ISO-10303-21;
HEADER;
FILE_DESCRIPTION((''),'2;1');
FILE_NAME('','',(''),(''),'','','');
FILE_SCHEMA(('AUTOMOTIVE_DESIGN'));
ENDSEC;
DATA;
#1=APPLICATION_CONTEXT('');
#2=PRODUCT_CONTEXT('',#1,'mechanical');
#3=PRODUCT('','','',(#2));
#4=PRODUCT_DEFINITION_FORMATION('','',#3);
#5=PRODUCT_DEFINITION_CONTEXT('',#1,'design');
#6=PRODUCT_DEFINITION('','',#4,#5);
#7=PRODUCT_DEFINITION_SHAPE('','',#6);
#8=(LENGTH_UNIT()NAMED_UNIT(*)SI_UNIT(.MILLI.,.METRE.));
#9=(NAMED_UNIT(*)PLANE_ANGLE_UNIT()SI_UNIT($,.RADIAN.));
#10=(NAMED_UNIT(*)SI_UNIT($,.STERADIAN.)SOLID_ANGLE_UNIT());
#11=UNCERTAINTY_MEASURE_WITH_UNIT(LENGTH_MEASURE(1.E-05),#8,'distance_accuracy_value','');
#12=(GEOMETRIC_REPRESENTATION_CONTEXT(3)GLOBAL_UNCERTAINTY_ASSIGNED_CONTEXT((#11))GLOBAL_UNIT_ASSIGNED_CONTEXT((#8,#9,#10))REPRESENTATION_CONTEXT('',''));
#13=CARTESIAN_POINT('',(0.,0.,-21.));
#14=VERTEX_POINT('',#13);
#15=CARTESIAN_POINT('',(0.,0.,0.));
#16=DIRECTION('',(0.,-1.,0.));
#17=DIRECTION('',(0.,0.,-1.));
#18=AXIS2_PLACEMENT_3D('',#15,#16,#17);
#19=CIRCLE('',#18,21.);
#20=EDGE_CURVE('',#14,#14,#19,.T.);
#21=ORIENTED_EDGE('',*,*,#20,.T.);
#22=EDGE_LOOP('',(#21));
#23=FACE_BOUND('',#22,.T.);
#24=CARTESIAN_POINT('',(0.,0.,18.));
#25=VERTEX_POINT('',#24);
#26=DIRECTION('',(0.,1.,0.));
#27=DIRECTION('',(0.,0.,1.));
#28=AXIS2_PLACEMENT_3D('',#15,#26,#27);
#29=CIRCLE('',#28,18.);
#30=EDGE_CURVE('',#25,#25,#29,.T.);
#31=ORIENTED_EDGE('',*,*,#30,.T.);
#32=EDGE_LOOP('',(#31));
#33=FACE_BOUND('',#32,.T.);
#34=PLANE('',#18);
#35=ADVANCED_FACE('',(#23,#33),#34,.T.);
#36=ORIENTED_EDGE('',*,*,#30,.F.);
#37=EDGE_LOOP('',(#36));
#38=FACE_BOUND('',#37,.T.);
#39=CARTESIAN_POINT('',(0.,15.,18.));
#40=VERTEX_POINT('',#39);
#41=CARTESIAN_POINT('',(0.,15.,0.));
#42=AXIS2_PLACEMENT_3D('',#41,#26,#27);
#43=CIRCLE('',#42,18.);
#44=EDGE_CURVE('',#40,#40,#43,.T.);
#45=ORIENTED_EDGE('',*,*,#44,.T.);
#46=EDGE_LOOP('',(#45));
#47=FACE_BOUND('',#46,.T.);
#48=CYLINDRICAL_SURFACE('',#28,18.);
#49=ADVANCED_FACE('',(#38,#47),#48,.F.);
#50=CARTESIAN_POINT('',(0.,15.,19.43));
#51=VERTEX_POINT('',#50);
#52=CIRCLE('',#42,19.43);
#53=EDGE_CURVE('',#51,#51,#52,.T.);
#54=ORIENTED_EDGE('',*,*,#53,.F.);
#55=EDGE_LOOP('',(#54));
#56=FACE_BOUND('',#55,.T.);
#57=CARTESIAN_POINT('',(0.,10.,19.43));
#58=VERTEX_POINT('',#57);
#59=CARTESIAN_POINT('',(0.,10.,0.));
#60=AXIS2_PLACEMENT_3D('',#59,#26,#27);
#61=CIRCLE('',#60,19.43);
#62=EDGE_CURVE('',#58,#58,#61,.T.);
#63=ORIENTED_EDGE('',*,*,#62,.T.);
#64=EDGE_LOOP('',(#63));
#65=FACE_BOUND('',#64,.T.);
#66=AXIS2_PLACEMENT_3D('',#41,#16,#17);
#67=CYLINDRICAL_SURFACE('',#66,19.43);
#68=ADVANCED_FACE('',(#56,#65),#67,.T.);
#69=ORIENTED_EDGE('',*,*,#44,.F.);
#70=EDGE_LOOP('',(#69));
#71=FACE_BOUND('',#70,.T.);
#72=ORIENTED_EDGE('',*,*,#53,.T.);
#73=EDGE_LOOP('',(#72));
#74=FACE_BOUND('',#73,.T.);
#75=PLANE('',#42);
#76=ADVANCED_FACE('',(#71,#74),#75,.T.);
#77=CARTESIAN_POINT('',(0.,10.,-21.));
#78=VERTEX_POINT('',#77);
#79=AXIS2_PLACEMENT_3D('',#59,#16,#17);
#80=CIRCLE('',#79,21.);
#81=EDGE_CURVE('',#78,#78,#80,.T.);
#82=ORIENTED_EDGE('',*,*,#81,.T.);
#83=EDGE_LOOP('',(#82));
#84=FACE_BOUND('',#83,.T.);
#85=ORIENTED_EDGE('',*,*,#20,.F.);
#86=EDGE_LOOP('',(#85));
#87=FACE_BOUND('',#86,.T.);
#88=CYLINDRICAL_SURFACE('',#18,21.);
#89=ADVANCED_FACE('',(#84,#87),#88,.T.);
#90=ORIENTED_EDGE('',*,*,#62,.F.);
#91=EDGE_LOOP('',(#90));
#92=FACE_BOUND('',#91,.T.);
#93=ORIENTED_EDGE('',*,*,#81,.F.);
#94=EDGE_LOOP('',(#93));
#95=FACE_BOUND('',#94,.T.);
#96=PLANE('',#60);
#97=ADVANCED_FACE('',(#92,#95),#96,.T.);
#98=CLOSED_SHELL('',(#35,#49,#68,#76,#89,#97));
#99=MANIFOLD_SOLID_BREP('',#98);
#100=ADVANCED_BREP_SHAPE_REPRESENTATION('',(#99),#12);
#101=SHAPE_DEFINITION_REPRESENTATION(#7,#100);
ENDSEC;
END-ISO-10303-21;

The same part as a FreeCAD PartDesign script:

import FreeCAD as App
import Part
import Sketcher

V = App.Vector

doc = App.newDocument("Part")
body = doc.addObject("PartDesign::Body", "Body")

# Sketch on XY plane
sketch1 = doc.addObject("Sketcher::SketchObject", "Sketch")
body.addObject(sketch1)
sketch1.AttachmentSupport = (doc.XY_Plane, [""])
sketch1.MapMode = "FlatFace"
sketch1.addGeometry([
    Part.LineSegment(V(0, 10, 0), V(0, 0, 0)),
    Part.LineSegment(V(0, 0, 0), V(21, 0, 0)),
    Part.LineSegment(V(21, 0, 0), V(21, 10, 0)),
    Part.LineSegment(V(21, 10, 0), V(0, 10, 0)),
], False)
sketch1.addConstraint([
    Sketcher.Constraint("Coincident", 0, 2, 1, 1),
    Sketcher.Constraint("Coincident", 1, 2, 2, 1),
    Sketcher.Constraint("Coincident", 2, 2, 3, 1),
    Sketcher.Constraint("Coincident", 3, 2, 0, 1),
    Sketcher.Constraint("Vertical", 0),
    Sketcher.Constraint("Horizontal", 1),
    Sketcher.Constraint("Vertical", 2),
    Sketcher.Constraint("Horizontal", 3),
    Sketcher.Constraint("Coincident", 0, 2, -1, 1),
    Sketcher.Constraint("DistanceX", 1, 1, 1, 2, 21.0),
    Sketcher.Constraint("DistanceY", 0, 2, 0, 1, 10.0),
])
revolution = doc.addObject("PartDesign::Revolution", "Revolution")
body.addObject(revolution)
revolution.Profile = sketch1
revolution.ReferenceAxis = (sketch1, ["V_Axis"])
revolution.Angle = 360

# Sketch on XZ plane
sketch2 = doc.addObject("Sketcher::SketchObject", "Sketch001")
body.addObject(sketch2)
sketch2.AttachmentSupport = (doc.XZ_Plane, [""])
sketch2.MapMode = "FlatFace"
sketch2.AttachmentOffset = App.Placement(V(0, 0, -10), App.Rotation())
sketch2.addGeometry(Part.Circle(V(0, 0, 0), V(0, 0, 1), 18), False)
sketch2.addConstraint([
    Sketcher.Constraint("Coincident", 0, 3, -1, 1),
    Sketcher.Constraint("Diameter", 0, 36.0),
])
pocket1 = doc.addObject("PartDesign::Pocket", "Pocket")
body.addObject(pocket1)
pocket1.Profile = sketch2
pocket1.Type = "ThroughAll"
pocket1.Reversed = True

# Sketch on XZ plane
sketch3 = doc.addObject("Sketcher::SketchObject", "Sketch002")
body.addObject(sketch3)
sketch3.AttachmentSupport = (doc.XZ_Plane, [""])
sketch3.MapMode = "FlatFace"
sketch3.AttachmentOffset = App.Placement(V(0, 0, -10), App.Rotation())
sketch3.addGeometry(Part.Circle(V(0, 0, 0), V(0, 0, 1), 19), False)
sketch3.addConstraint([
    Sketcher.Constraint("Coincident", 0, 3, -1, 1),
    Sketcher.Constraint("Diameter", 0, 38.86),
])
pad1 = doc.addObject("PartDesign::Pad", "Pad")
body.addObject(pad1)
pad1.Profile = sketch3
pad1.Length = 5
pad1.Reversed = True

# Sketch on XZ plane
sketch4 = doc.addObject("Sketcher::SketchObject", "Sketch003")
body.addObject(sketch4)
sketch4.AttachmentSupport = (doc.XZ_Plane, [""])
sketch4.MapMode = "FlatFace"
sketch4.AttachmentOffset = App.Placement(V(0, 0, -15), App.Rotation())
sketch4.addGeometry(Part.Circle(V(0, 0, 0), V(0, 0, 1), 18), False)
sketch4.addConstraint([
    Sketcher.Constraint("Coincident", 0, 3, -1, 1),
    Sketcher.Constraint("Diameter", 0, 36.0),
])
pocket2 = doc.addObject("PartDesign::Pocket", "Pocket001")
body.addObject(pocket2)
pocket2.Profile = sketch4
pocket2.Type = "ThroughAll"
pocket2.Reversed = True

doc.recompute()
